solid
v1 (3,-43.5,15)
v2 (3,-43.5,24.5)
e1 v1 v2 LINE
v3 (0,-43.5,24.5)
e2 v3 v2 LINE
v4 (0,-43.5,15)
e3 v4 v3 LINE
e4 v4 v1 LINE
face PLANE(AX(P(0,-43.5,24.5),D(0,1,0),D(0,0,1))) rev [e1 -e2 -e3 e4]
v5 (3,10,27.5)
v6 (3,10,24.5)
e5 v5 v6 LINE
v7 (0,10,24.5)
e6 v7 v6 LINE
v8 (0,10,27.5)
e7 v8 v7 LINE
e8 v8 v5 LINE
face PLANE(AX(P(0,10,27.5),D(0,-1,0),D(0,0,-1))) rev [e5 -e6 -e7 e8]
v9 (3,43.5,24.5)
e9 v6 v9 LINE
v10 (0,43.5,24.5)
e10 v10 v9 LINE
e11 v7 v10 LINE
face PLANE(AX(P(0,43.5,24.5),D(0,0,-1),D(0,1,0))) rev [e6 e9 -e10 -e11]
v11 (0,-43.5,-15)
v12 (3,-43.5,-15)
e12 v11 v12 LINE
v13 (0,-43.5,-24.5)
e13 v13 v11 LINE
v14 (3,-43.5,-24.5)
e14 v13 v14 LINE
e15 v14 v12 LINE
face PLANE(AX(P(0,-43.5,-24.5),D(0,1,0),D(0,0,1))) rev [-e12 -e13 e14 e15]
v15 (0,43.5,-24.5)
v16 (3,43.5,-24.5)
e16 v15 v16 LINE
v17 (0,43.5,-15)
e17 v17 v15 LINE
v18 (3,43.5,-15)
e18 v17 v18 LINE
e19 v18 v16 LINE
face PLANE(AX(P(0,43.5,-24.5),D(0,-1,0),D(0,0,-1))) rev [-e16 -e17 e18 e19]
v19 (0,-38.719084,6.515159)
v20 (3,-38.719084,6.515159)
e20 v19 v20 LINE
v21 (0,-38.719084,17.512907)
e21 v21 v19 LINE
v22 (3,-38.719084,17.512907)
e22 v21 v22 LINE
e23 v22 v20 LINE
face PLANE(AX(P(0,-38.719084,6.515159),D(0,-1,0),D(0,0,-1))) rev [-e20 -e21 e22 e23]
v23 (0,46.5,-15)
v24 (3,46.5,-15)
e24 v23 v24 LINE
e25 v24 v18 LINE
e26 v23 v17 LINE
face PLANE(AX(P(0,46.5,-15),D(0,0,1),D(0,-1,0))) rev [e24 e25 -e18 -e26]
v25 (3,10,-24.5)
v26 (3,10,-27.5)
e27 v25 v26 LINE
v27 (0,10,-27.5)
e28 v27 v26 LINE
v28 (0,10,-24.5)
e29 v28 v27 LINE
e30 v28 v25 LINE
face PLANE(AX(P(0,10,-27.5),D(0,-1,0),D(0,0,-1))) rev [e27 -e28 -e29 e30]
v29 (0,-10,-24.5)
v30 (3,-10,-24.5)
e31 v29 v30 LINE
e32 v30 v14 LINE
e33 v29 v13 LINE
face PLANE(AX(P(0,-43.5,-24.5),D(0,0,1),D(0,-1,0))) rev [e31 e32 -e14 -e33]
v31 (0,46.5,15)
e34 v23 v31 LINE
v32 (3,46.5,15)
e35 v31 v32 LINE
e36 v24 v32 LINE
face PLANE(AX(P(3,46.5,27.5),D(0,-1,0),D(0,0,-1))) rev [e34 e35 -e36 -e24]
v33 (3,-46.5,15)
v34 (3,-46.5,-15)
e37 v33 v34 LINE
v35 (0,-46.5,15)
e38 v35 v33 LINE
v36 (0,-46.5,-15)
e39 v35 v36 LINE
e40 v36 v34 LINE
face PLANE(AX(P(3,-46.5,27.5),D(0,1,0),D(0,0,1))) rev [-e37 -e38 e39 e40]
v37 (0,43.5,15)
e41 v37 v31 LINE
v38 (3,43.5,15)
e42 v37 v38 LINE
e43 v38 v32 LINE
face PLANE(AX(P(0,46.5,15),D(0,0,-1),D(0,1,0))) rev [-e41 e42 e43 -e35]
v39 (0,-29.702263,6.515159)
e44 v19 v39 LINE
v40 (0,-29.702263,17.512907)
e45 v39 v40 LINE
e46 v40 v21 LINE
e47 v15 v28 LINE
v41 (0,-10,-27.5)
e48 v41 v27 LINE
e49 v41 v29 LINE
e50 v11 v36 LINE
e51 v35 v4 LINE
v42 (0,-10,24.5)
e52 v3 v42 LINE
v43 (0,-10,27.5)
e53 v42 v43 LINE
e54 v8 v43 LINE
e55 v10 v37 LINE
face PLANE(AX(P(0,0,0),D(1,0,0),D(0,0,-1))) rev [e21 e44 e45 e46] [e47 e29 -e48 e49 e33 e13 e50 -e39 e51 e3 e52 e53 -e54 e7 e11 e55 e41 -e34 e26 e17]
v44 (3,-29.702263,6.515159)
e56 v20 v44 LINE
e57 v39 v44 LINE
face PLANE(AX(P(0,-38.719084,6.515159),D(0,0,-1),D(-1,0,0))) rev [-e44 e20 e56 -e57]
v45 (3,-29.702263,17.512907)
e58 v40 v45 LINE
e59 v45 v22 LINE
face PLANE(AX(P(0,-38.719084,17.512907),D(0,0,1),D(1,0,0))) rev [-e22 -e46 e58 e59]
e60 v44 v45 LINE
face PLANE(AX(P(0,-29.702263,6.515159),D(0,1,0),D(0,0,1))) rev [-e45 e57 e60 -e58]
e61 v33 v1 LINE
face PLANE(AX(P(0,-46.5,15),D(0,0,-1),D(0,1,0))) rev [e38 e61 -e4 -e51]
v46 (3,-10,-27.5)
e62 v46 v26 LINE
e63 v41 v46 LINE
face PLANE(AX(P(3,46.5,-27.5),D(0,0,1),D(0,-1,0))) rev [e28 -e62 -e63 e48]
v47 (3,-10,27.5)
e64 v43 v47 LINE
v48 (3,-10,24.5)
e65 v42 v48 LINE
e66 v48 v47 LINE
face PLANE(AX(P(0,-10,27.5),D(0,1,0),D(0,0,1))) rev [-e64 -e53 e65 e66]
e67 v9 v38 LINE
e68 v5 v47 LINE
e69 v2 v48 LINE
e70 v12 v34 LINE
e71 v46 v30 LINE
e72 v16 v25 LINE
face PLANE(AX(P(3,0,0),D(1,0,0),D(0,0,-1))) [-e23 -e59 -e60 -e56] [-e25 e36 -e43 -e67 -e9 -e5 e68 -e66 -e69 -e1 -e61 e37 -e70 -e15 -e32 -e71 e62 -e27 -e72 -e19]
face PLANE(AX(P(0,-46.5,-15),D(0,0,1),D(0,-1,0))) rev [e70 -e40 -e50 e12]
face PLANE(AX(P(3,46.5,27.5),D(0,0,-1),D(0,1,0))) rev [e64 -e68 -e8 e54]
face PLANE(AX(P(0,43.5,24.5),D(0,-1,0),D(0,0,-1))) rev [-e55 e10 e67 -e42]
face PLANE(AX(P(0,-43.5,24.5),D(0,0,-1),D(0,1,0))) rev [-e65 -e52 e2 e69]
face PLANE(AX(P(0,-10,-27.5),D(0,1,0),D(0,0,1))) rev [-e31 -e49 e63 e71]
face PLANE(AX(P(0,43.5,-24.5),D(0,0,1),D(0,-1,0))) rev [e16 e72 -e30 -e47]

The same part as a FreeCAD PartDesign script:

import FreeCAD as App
import Part
import Sketcher
Q = App.Units.Quantity


def add_polygon(sketch, points):
    """Adds a closed chain of lines whose ends are joined by coincident constraints."""
    first, n = sketch.GeometryCount, len(points)
    for a, b in zip(points, points[1:] + points[:1]):
        sketch.addGeometry(Part.LineSegment(App.Vector(*a, 0), App.Vector(*b, 0)), False)
    for i in range(n):
        sketch.addConstraint(Sketcher.Constraint("Coincident", first + i, 2, first + (i + 1) % n, 1))

doc = App.newDocument("Part")
body = doc.addObject("PartDesign::Body", "Body")

# Sketch on YZ plane
sketch1 = body.newObject("Sketcher::SketchObject", "Sketch")
sketch1.AttachmentSupport = (doc.getObject("YZ_Plane"), [""])
sketch1.MapMode = "FlatFace"
add_polygon(sketch1, [(46.5, 27.5), (-46.5, 27.5), (-46.5, -27.5), (46.5, -27.5)])  # lines 0-3
sketch1.addConstraint([
    Sketcher.Constraint("Horizontal", 0),
    Sketcher.Constraint("Vertical", 1),
    Sketcher.Constraint("Horizontal", 2),
    Sketcher.Constraint("Vertical", 3),
    Sketcher.Constraint("Symmetric", 0, 2, 2, 2, -1, 1),
    Sketcher.Constraint("DistanceX", 0, 2, 0, 1, Q("93 mm")),
    Sketcher.Constraint("DistanceY", 1, 2, 1, 1, Q("55 mm")),
])
pad1 = body.newObject("PartDesign::Pad", "Pad")
pad1.Profile = sketch1
pad1.Length = 3

# Sketch on YZ plane
sketch2 = body.newObject("Sketcher::SketchObject", "Sketch001")
sketch2.AttachmentSupport = (doc.getObject("YZ_Plane"), [""])
sketch2.MapMode = "FlatFace"
sketch2.AttachmentOffset = App.Placement(App.Vector(0, 0, 3), App.Rotation())
add_polygon(sketch2, [(46.5, 15), (46.5, 27.5), (10, 27.5), (10, 24.5), (43.5, 24.5), (43.5, 15)])  # lines 0-5
add_polygon(sketch2, [(10, -27.5), (46.5, -27.5), (46.5, -15), (43.5, -15), (43.5, -24.5), (10, -24.5)])  # lines 6-11
add_polygon(sketch2, [(-46.5, -15), (-46.5, -27.5), (-10, -27.5), (-10, -24.5), (-43.5, -24.5), (-43.5, -15)])  # lines 12-17
add_polygon(sketch2, [(-10, 27.5), (-46.5, 27.5), (-46.5, 15), (-43.5, 15), (-43.5, 24.5), (-10, 24.5)])  # lines 18-23
add_polygon(sketch2, [(-29.702263, 17.512907), (-38.719084, 17.512907), (-38.719084, 6.515159), (-29.702263, 6.515159)])  # lines 24-27
sketch2.addConstraint([
    Sketcher.Constraint("Vertical", 0),
    Sketcher.Constraint("Horizontal", 1),
    Sketcher.Constraint("Vertical", 2),
    Sketcher.Constraint("Horizontal", 3),
    Sketcher.Constraint("Vertical", 4),
    Sketcher.Constraint("Horizontal", 5),
    Sketcher.Constraint("Horizontal", 6),
    Sketcher.Constraint("Vertical", 7),
    Sketcher.Constraint("Horizontal", 8),
    Sketcher.Constraint("Vertical", 9),
    Sketcher.Constraint("Horizontal", 10),
    Sketcher.Constraint("Vertical", 11),
    Sketcher.Constraint("Vertical", 12),
    Sketcher.Constraint("Horizontal", 13),
    Sketcher.Constraint("Vertical", 14),
    Sketcher.Constraint("Horizontal", 15),
    Sketcher.Constraint("Vertical", 16),
    Sketcher.Constraint("Horizontal", 17),
    Sketcher.Constraint("Horizontal", 18),
    Sketcher.Constraint("Vertical", 19),
    Sketcher.Constraint("Horizontal", 20),
    Sketcher.Constraint("Vertical", 21),
    Sketcher.Constraint("Horizontal", 22),
    Sketcher.Constraint("Vertical", 23),
    Sketcher.Constraint("Horizontal", 24),
    Sketcher.Constraint("Vertical", 25),
    Sketcher.Constraint("Horizontal", 26),
    Sketcher.Constraint("Vertical", 27),
    Sketcher.Constraint("Symmetric", 0, 2, 12, 2, -1, 1),
    Sketcher.Constraint("Symmetric", 2, 2, 14, 2, -1, 1),
    Sketcher.Constraint("Symmetric", 4, 2, 16, 2, -1, 1),
    Sketcher.Constraint("Symmetric", 6, 2, 18, 2, -1, 1),
    Sketcher.Constraint("Symmetric", 8, 2, 20, 2, -1, 1),
    Sketcher.Constraint("Symmetric", 10, 2, 22, 2, -1, 1),
    Sketcher.Constraint("Symmetric", 6, 2, 12, 2, -2),
    Sketcher.Constraint("Symmetric", 10, 2, 14, 2, -2),
    Sketcher.Constraint("Symmetric", 8, 2, 16, 2, -2),
    Sketcher.Constraint("Equal", 20, 2),
    Sketcher.Constraint("DistanceX", 5, 1, 5, 2, Q("3 mm")),
    Sketcher.Constraint("DistanceX", 1, 2, 1, 1, Q("36.5 mm")),
    Sketcher.Constraint("DistanceY", 0, 1, 0, 2, Q("12.5 mm")),
    Sketcher.Constraint("DistanceX", -1, 1, 1, 2, Q("10 mm")),
    Sketcher.Constraint("DistanceY", -1, 1, 4, 2, Q("15 mm")),
    Sketcher.Constraint("DistanceX", 24, 2, 24, 1, Q("9.016821 mm")),
    Sketcher.Constraint("DistanceY", 25, 2, 25, 1, Q("10.997748 mm")),
    Sketcher.Constraint("DistanceY", -1, 1, 25, 2, Q("6.515159 mm")),
    Sketcher.Constraint("DistanceX", 24, 2, -1, 1, Q("38.719084 mm")),
])
pocket1 = body.newObject("PartDesign::Pocket", "Pocket")
pocket1.Profile = sketch2
pocket1.Length = 3

doc.recompute()
